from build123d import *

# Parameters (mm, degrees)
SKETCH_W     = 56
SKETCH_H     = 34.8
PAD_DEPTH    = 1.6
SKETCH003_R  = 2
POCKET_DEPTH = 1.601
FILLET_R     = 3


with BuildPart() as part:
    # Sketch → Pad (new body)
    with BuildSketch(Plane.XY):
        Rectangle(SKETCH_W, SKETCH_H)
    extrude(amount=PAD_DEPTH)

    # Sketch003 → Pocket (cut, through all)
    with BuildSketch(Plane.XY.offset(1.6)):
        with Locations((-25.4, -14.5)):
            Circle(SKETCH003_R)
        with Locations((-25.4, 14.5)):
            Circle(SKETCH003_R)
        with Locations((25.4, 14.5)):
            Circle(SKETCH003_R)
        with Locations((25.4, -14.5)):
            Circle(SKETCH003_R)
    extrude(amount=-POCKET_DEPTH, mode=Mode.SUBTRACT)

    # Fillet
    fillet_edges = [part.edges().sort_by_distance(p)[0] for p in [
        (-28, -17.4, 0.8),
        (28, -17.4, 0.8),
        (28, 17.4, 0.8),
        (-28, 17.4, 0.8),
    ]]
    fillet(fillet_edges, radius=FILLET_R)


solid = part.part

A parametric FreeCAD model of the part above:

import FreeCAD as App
import Part
import Sketcher


def edges_at(feature, points):
    """Names of the edges that pass closest to the given points."""
    edges = feature.Shape.Edges
    near = lambda p: min(range(len(edges)), key=lambda i: edges[i].distToShape(Part.Vertex(*p))[0])
    return sorted({f"Edge{near(p) + 1}" for p in points})


def add_polygon(sketch, points):
    """Adds a closed chain of lines whose ends are joined by coincident constraints."""
    first, n = sketch.GeometryCount, len(points)
    for a, b in zip(points, points[1:] + points[:1]):
        sketch.addGeometry(Part.LineSegment(App.Vector(*a, 0), App.Vector(*b, 0)), False)
    for i in range(n):
        sketch.addConstraint(Sketcher.Constraint("Coincident", first + i, 2, first + (i + 1) % n, 1))

doc = App.newDocument("Part")
body = doc.addObject("PartDesign::Body", "Body")

sketch1 = body.newObject("Sketcher::SketchObject", "Sketch")
sketch1.AttachmentSupport = (doc.getObject("XY_Plane"), [""])
sketch1.MapMode = "FlatFace"
add_polygon(sketch1, [(-28, 17), (-28, -17), (28, -17), (28, 17)])
sketch1.addConstraint([
    Sketcher.Constraint("Vertical", 0),
    Sketcher.Constraint("Horizontal", 1),
    Sketcher.Constraint("Vertical", 2),
    Sketcher.Constraint("Horizontal", 3),
    Sketcher.Constraint("Symmetric", 0, 2, 2, 2, -1, 1),
    Sketcher.Constraint("DistanceX", 1, 1, 1, 2, 56.0),
    Sketcher.Constraint("DistanceY", 0, 2, 0, 1, 34.8),
])
pad1 = body.newObject("PartDesign::Pad", "Pad")
pad1.Profile = sketch1
pad1.Length = 1.6

sketch2 = body.newObject("Sketcher::SketchObject", "Sketch001")
sketch2.AttachmentSupport = (doc.getObject("XY_Plane"), [""])
sketch2.MapMode = "FlatFace"
sketch2.AttachmentOffset = App.Placement(App.Vector(0, 0, 1.6), App.Rotation())
sketch2.addGeometry([
    Part.Circle(App.Vector(-25.4, -14.5, 0), App.Vector(0, 0, 1), 2),
    Part.Circle(App.Vector(-25.4, 14.5, 0), App.Vector(0, 0, 1), 2),
    Part.Circle(App.Vector(25.4, 14.5, 0), App.Vector(0, 0, 1), 2),
    Part.Circle(App.Vector(25.4, -14.5, 0), App.Vector(0, 0, 1), 2),
], False)
sketch2.addConstraint([
    Sketcher.Constraint("Equal", 0, 1),
    Sketcher.Constraint("Equal", 1, 2),
    Sketcher.Constraint("Equal", 2, 3),
    Sketcher.Constraint("Symmetric", 0, 3, 2, 3, -1, 1),
    Sketcher.Constraint("Symmetric", 1, 3, 3, 3, -1, 1),
    Sketcher.Constraint("Symmetric", 1, 3, 2, 3, -2),
    Sketcher.Constraint("Diameter", 0, 4.0),
    Sketcher.Constraint("DistanceY", 0, 3, 1, 3, 29.0),
    Sketcher.Constraint("DistanceX", 0, 3, -1, 1, 25.4),
])
pocket1 = body.newObject("PartDesign::Pocket", "Pocket")
pocket1.Profile = sketch2
pocket1.Type = "ThroughAll"
doc.recompute()

fillet = body.newObject("PartDesign::Fillet", "Fillet")
fillet.Base = (pocket1, edges_at(pocket1, [
    (-28, -17.4, 0.8),
    (28, -17.4, 0.8),
    (28, 17.4, 0.8),
    (-28, 17.4, 0.8),
]))
fillet.Radius = 3

doc.recompute()
